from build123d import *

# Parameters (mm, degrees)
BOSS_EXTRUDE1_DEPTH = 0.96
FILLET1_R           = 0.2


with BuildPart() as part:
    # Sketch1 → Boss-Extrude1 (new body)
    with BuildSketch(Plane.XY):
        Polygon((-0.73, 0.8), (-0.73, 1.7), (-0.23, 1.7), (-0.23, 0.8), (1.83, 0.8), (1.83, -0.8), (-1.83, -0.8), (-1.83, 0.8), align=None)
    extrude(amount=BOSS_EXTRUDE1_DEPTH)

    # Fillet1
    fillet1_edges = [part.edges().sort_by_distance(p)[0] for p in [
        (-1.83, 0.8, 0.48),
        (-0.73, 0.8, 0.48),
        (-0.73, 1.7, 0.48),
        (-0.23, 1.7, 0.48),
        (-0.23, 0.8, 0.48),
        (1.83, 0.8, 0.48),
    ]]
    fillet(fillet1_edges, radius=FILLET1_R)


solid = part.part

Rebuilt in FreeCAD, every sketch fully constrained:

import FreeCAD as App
import Part
import Sketcher
from FreeCAD import Vector


def edges_at(feature, points):
    """Names of the edges that pass closest to the given points."""
    edges = feature.Shape.Edges
    near = lambda p: min(range(len(edges)), key=lambda i: edges[i].distToShape(Part.Vertex(*p))[0])
    return sorted({f"Edge{near(p) + 1}" for p in points})


def add_polygon(sketch, points):
    """Adds a closed chain of lines whose ends are joined by coincident constraints."""
    first, n = sketch.GeometryCount, len(points)
    for a, b in zip(points, points[1:] + points[:1]):
        sketch.addGeometry(Part.LineSegment(App.Vector(*a, 0), App.Vector(*b, 0)), False)
    for i in range(n):
        sketch.addConstraint(Sketcher.Constraint("Coincident", first + i, 2, first + (i + 1) % n, 1))

doc = App.newDocument("Part")
params = doc.addObject("Spreadsheet::Sheet", "Params")
for row, (alias, value) in enumerate([
    ("sketch1_width", "1.1 mm"),
    ("sketch1_width2", "0.5 mm"),
    ("sketch1_height", "0.9 mm"),
    ("sketch1_height2", "1.6 mm"),
    ("sketch1_width3", "3.66 mm"),
    ("pad1_length", "0.96 mm"),
    ("fillet_radius", "0.2 mm"),
], start=1):
    params.set(f"A{row}", alias)
    params.set(f"B{row}", "=" + value)
    params.setAlias(f"B{row}", alias)

body = doc.addObject("PartDesign::Body", "Body")

sketch1 = body.newObject("Sketcher::SketchObject", "Sketch")
sketch1.AttachmentSupport = (doc.getObject("XY_Plane"), [""])
sketch1.MapMode = "FlatFace"
add_polygon(sketch1, [(-0.73, 1.7), (-0.73, 0.8), (-1.83, 0.8), (-1.83, -0.8), (1.83, -0.8), (1.83, 0.8), (-0.23, 0.8), (-0.23, 1.7)])
sketch1.addConstraint(Sketcher.Constraint("Vertical", 0))
sketch1.addConstraint(Sketcher.Constraint("Horizontal", 1))
sketch1.addConstraint(Sketcher.Constraint("Vertical", 2))
sketch1.addConstraint(Sketcher.Constraint("Horizontal", 3))
sketch1.addConstraint(Sketcher.Constraint("Vertical", 4))
sketch1.addConstraint(Sketcher.Constraint("Horizontal", 5))
sketch1.addConstraint(Sketcher.Constraint("Vertical", 6))
sketch1.addConstraint(Sketcher.Constraint("Horizontal", 7))
sketch1.addConstraint(Sketcher.Constraint("Symmetric", 1, 2, 3, 2, -1, 1))
sketch1.addConstraint(Sketcher.Constraint("Horizontal", 1, 2, 4, 2))
sketch1.addConstraint(Sketcher.Constraint("DistanceX", 1, 2, 1, 1, 1.1))
sketch1.addConstraint(Sketcher.Constraint("DistanceX", 7, 2, 7, 1, 0.5))
sketch1.addConstraint(Sketcher.Constraint("DistanceY", 0, 2, 0, 1, 0.9))
sketch1.addConstraint(Sketcher.Constraint("DistanceY", 2, 2, 2, 1, 1.6))
sketch1.addConstraint(Sketcher.Constraint("DistanceX", 3, 1, 3, 2, 3.66))
sketch1.setExpression("Constraints[18]", "Params.sketch1_width")
sketch1.setExpression("Constraints[19]", "Params.sketch1_width2")
sketch1.setExpression("Constraints[20]", "Params.sketch1_height")
sketch1.setExpression("Constraints[21]", "Params.sketch1_height2")
sketch1.setExpression("Constraints[22]", "Params.sketch1_width3")
pad1 = body.newObject("PartDesign::Pad", "Pad")
pad1.Profile = sketch1
pad1.setExpression("Length", "Params.pad1_length")
doc.recompute()

fillet = body.newObject("PartDesign::Fillet", "Fillet")
fillet.Base = (pad1, edges_at(pad1, [
    (-1.83, 0.8, 0.48),
    (-0.73, 0.8, 0.48),
    (-0.73, 1.7, 0.48),
    (-0.23, 1.7, 0.48),
    (-0.23, 0.8, 0.48),
    (1.83, 0.8, 0.48),
]))
fillet.setExpression("Radius", "Params.fillet_radius")

doc.recompute()
